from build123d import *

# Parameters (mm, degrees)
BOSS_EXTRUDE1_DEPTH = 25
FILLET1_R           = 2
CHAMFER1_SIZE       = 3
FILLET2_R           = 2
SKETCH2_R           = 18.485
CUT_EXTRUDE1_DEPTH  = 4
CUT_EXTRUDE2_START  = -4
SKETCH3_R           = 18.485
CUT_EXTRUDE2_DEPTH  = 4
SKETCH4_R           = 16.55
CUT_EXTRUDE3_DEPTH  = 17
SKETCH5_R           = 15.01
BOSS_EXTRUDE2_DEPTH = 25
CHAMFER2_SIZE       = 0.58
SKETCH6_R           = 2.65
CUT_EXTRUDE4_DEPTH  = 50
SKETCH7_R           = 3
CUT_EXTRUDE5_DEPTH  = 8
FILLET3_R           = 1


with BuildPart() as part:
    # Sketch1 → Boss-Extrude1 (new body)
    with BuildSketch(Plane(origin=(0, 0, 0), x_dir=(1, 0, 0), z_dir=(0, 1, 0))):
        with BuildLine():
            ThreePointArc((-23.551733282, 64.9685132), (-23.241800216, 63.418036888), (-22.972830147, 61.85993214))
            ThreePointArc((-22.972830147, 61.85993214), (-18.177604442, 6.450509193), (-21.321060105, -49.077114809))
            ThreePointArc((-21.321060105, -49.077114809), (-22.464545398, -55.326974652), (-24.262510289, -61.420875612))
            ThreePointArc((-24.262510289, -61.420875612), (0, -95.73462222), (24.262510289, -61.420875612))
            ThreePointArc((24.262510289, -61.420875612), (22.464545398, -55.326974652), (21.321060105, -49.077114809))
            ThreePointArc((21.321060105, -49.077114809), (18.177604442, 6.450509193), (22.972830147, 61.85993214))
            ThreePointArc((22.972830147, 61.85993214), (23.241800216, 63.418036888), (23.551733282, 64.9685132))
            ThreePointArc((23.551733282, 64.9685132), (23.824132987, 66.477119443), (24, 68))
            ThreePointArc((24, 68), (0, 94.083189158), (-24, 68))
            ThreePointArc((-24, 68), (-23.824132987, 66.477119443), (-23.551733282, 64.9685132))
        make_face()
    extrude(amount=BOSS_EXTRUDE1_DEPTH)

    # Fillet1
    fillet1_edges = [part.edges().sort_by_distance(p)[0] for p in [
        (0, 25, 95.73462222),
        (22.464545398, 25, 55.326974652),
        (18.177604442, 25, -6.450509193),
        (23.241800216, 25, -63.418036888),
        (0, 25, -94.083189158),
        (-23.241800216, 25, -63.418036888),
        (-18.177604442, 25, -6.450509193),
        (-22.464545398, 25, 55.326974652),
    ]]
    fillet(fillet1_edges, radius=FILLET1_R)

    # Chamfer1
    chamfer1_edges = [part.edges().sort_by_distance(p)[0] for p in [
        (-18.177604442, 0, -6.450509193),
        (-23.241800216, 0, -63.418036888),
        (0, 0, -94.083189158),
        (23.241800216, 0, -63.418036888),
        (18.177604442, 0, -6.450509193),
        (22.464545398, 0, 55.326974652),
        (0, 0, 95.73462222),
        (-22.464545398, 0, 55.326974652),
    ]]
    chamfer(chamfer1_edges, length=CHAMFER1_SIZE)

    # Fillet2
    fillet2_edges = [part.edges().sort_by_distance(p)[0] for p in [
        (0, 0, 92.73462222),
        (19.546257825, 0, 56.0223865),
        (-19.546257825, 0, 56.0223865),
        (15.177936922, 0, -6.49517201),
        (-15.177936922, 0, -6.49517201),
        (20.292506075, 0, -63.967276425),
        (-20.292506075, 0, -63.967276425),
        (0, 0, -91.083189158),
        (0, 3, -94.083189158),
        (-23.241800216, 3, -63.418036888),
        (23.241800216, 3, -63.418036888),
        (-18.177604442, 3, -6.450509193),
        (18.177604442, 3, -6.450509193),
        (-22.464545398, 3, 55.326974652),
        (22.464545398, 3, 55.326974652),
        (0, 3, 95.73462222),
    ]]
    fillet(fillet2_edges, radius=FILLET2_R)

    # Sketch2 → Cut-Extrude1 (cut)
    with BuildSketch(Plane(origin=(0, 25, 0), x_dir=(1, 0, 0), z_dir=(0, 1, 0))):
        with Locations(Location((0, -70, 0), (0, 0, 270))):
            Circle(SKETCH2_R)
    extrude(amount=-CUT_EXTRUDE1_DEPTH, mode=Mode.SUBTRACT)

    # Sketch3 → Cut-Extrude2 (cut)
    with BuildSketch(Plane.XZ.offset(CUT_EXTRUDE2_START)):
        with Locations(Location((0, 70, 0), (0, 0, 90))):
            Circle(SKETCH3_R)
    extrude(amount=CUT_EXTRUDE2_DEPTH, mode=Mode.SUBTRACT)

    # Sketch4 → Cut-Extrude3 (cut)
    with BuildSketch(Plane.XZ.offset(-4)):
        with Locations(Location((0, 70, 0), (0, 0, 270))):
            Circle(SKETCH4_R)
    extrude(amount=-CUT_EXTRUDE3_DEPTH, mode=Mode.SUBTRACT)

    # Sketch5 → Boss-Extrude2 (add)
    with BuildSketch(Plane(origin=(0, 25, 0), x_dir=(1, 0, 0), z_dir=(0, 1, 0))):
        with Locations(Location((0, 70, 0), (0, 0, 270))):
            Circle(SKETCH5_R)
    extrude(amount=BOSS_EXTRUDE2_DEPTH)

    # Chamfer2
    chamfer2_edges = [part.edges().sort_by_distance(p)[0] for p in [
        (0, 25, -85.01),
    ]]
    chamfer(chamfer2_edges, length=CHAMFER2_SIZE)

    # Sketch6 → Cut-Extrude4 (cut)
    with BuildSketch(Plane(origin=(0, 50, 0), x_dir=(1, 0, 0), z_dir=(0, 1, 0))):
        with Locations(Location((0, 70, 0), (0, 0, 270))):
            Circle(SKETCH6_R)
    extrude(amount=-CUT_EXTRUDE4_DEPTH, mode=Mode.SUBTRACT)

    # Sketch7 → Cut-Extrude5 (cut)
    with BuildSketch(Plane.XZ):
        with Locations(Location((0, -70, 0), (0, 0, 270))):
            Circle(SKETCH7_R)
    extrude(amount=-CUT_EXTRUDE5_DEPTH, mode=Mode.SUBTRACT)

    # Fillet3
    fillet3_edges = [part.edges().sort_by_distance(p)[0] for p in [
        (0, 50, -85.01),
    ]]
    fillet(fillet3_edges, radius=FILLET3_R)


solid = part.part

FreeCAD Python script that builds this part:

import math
import FreeCAD as App
import Part
import Sketcher

V = App.Vector
Q = App.Units.Quantity


def edges_at(feature, points):
    """Names of the edges that pass closest to the given points."""
    edges = feature.Shape.Edges
    near = lambda p: min(range(len(edges)), key=lambda i: edges[i].distToShape(Part.Vertex(*p))[0])
    return sorted({f"Edge{near(p) + 1}" for p in points})

doc = App.newDocument("Part")
body = doc.addObject("PartDesign::Body", "Body")

# Sketch on XZ plane
sketch1 = body.newObject("Sketcher::SketchObject", "Sketch")
sketch1.AttachmentSupport = (doc.getObject("XZ_Plane"), [""])
sketch1.MapMode = "FlatFace"
sketch1.addGeometry([
    Part.ArcOfCircle(Part.Circle(V(-82.227683, -52.433246, 0), V(0, 0, 1), 60), math.radians(-12.059134), math.radians(-9.039273)),  # 0
    Part.ArcOfCircle(Part.Circle(V(-407.727533, -0.650401, 0), V(0, 0, 1), 389.593106), math.radians(-9.039273), math.radians(7.333216)),  # 1
    Part.ArcOfCircle(Part.Circle(V(-80.830297, 41.418738, 0), V(0, 0, 1), 60), math.radians(7.333216), math.radians(19.473386)),  # 2
    Part.ArcOfCircle(Part.Circle(V(0, 70, 0), V(0, 0, 1), 25.734622), math.radians(-19.473386), math.radians(199.473386)),  # 3
    Part.ArcOfCircle(Part.Circle(V(80.830297, 41.418738, 0), V(0, 0, 1), 60), math.radians(160.526614), math.radians(172.666784)),  # 4
    Part.ArcOfCircle(Part.Circle(V(407.727533, -0.650401, 0), V(0, 0, 1), 389.593106), math.radians(172.666784), math.radians(189.039273)),  # 5
    Part.ArcOfCircle(Part.Circle(V(82.227683, -52.433246, 0), V(0, 0, 1), 60), math.radians(-170.960727), math.radians(-167.940866)),  # 6
    Part.ArcOfCircle(Part.Circle(V(0, -70, 0), V(0, 0, 1), 24.083189), math.radians(4.763642), math.radians(12.059134)),  # 7
    Part.ArcOfCircle(Part.Circle(V(0, -70, 0), V(0, 0, 1), 24.083189), math.radians(175.236358), math.radians(364.763642)),  # 8
    Part.ArcOfCircle(Part.Circle(V(0, -70, 0), V(0, 0, 1), 24.083189), math.radians(167.940866), math.radians(175.236358)),  # 9
], False)
sketch1.addConstraint([
    Sketcher.Constraint("Tangent", 0, 2, 1, 1),
    Sketcher.Constraint("Tangent", 1, 2, 2, 1),
    Sketcher.Constraint("Tangent", 2, 2, 3, 2),
    Sketcher.Constraint("Tangent", 3, 1, 4, 1),
    Sketcher.Constraint("Tangent", 4, 2, 5, 1),
    Sketcher.Constraint("Tangent", 5, 2, 6, 1),
    Sketcher.Constraint("Tangent", 6, 2, 7, 2),
    Sketcher.Constraint("Tangent", 7, 1, 8, 2),
    Sketcher.Constraint("Tangent", 8, 1, 9, 2),
    Sketcher.Constraint("Tangent", 9, 1, 0, 1),
    Sketcher.Constraint("Coincident", 9, 3, 7, 3),
    Sketcher.Constraint("Equal", 0, 2),
    Sketcher.Constraint("Equal", 2, 4),
    Sketcher.Constraint("Equal", 1, 5),
    Sketcher.Constraint("Equal", 4, 6),
    Sketcher.Constraint("Symmetric", 3, 3, 7, 3, -1, 1),
    Sketcher.Constraint("Symmetric", 2, 3, 4, 3, -2),
    Sketcher.Constraint("Horizontal", 1, 3, 5, 3),
    Sketcher.Constraint("Horizontal", 7, 1, 8, 1),
    Sketcher.Constraint("Radius", 0, Q("60 mm")),
    Sketcher.Constraint("DistanceY", -1, 1, 3, 3, Q("70 mm")),
    Sketcher.Constraint("DistanceX", -1, 1, 7, 1, Q("24 mm")),
    Sketcher.Constraint("DistanceY", 7, 1, -1, 1, Q("68 mm")),
    Sketcher.Constraint("Radius", 1, Q("389.593106 mm")),
    Sketcher.Constraint("Radius", 3, Q("25.734622 mm")),
    Sketcher.Constraint("DistanceY", 1, 3, -1, 1, Q("0.650401 mm")),
    Sketcher.Constraint("DistanceX", 0, 2, -1, 1, Q("22.97283 mm")),
])
pad1 = body.newObject("PartDesign::Pad", "Pad")
pad1.Profile = sketch1
pad1.Length = 25
pad1.Reversed = True
doc.recompute()

fillet = body.newObject("PartDesign::Fillet", "Fillet")
fillet.Base = (pad1, edges_at(pad1, [
    (0, 25, 95.735),
    (22.465, 25, 55.327),
    (18.178, 25, -6.451),
    (23.242, 25, -63.418),
    (0, 25, -94.083),
    (-23.242, 25, -63.418),
    (-18.178, 25, -6.451),
    (-22.465, 25, 55.327),
]))
fillet.Radius = 2
doc.recompute()

chamfer = body.newObject("PartDesign::Chamfer", "Chamfer")
chamfer.Base = (fillet, edges_at(fillet, [
    (-18.178, 0, -6.451),
    (-23.242, 0, -63.418),
    (0, 0, -94.083),
    (23.242, 0, -63.418),
    (18.178, 0, -6.451),
    (22.465, 0, 55.327),
    (0, 0, 95.735),
    (-22.465, 0, 55.327),
]))
chamfer.Size = 3
doc.recompute()

fillet2 = body.newObject("PartDesign::Fillet", "Fillet001")
fillet2.Base = (chamfer, edges_at(chamfer, [
    (0, 0, 92.735),
    (19.546, 0, 56.022),
    (-19.546, 0, 56.022),
    (15.178, 0, -6.495),
    (-15.178, 0, -6.495),
    (20.293, 0, -63.967),
    (-20.293, 0, -63.967),
    (0, 0, -91.083),
    (0, 3, -94.083),
    (-23.242, 3, -63.418),
    (23.242, 3, -63.418),
    (-18.178, 3, -6.451),
    (18.178, 3, -6.451),
    (-22.465, 3, 55.327),
    (22.465, 3, 55.327),
    (0, 3, 95.735),
]))
fillet2.Radius = 2

# Sketch on XZ plane
sketch2 = body.newObject("Sketcher::SketchObject", "Sketch001")
sketch2.AttachmentSupport = (doc.getObject("XZ_Plane"), [""])
sketch2.MapMode = "FlatFace"
sketch2.AttachmentOffset = App.Placement(V(0, 0, -25), App.Rotation())
sketch2.addGeometry(Part.Circle(V(0, 70, 0), V(0, 0, 1), 18.485), False)
sketch2.addConstraint([
    Sketcher.Constraint("PointOnObject", 0, 3, -2),
    Sketcher.Constraint("Diameter", 0, Q("36.97 mm")),
    Sketcher.Constraint("DistanceY", -1, 1, 0, 3, Q("70 mm")),
])
pocket1 = body.newObject("PartDesign::Pocket", "Pocket")
pocket1.Profile = sketch2
pocket1.Length = 4
pocket1.Reversed = True

# Sketch on XZ plane
sketch3 = body.newObject("Sketcher::SketchObject", "Sketch002")
sketch3.AttachmentSupport = (doc.getObject("XZ_Plane"), [""])
sketch3.MapMode = "FlatFace"
sketch3.AttachmentOffset = App.Placement(V(0, 0, -4), App.Rotation())
sketch3.addGeometry(Part.Circle(V(0, 70, 0), V(0, 0, 1), 18.485), False)
sketch3.addConstraint([
    Sketcher.Constraint("PointOnObject", 0, 3, -2),
    Sketcher.Constraint("Diameter", 0, Q("36.97 mm")),
    Sketcher.Constraint("DistanceY", -1, 1, 0, 3, Q("70 mm")),
])
pocket2 = body.newObject("PartDesign::Pocket", "Pocket001")
pocket2.Profile = sketch3
pocket2.Length = 4
pocket2.Reversed = True

# Sketch on XZ plane
sketch4 = body.newObject("Sketcher::SketchObject", "Sketch003")
sketch4.AttachmentSupport = (doc.getObject("XZ_Plane"), [""])
sketch4.MapMode = "FlatFace"
sketch4.AttachmentOffset = App.Placement(V(0, 0, -4), App.Rotation())
sketch4.addGeometry(Part.Circle(V(0, 70, 0), V(0, 0, 1), 16.55), False)
sketch4.addConstraint([
    Sketcher.Constraint("PointOnObject", 0, 3, -2),
    Sketcher.Constraint("Diameter", 0, Q("33.1 mm")),
    Sketcher.Constraint("DistanceY", -1, 1, 0, 3, Q("70 mm")),
])
pocket3 = body.newObject("PartDesign::Pocket", "Pocket002")
pocket3.Profile = sketch4
pocket3.Length = 17

# Sketch on XZ plane
sketch5 = body.newObject("Sketcher::SketchObject", "Sketch004")
sketch5.AttachmentSupport = (doc.getObject("XZ_Plane"), [""])
sketch5.MapMode = "FlatFace"
sketch5.AttachmentOffset = App.Placement(V(0, 0, -25), App.Rotation())
sketch5.addGeometry(Part.Circle(V(0, -70, 0), V(0, 0, 1), 15.01), False)
sketch5.addConstraint([
    Sketcher.Constraint("PointOnObject", 0, 3, -2),
    Sketcher.Constraint("Diameter", 0, Q("30.02 mm")),
    Sketcher.Constraint("DistanceY", 0, 3, -1, 1, Q("70 mm")),
])
pad2 = body.newObject("PartDesign::Pad", "Pad001")
pad2.Profile = sketch5
pad2.Length = 25
pad2.Reversed = True
doc.recompute()

chamfer2 = body.newObject("PartDesign::Chamfer", "Chamfer001")
chamfer2.Base = (pad2, edges_at(pad2, [(0, 25, -85.01)]))
chamfer2.Size = 0.58

# Sketch on XZ plane
sketch6 = body.newObject("Sketcher::SketchObject", "Sketch005")
sketch6.AttachmentSupport = (doc.getObject("XZ_Plane"), [""])
sketch6.MapMode = "FlatFace"
sketch6.AttachmentOffset = App.Placement(V(0, 0, -50), App.Rotation())
sketch6.addGeometry(Part.Circle(V(0, -70, 0), V(0, 0, 1), 2.65), False)
sketch6.addConstraint([
    Sketcher.Constraint("PointOnObject", 0, 3, -2),
    Sketcher.Constraint("Diameter", 0, Q("5.3 mm")),
    Sketcher.Constraint("DistanceY", 0, 3, -1, 1, Q("70 mm")),
])
pocket4 = body.newObject("PartDesign::Pocket", "Pocket003")
pocket4.Profile = sketch6
pocket4.Length = 50
pocket4.Reversed = True

# Sketch on XZ plane
sketch7 = body.newObject("Sketcher::SketchObject", "Sketch006")
sketch7.AttachmentSupport = (doc.getObject("XZ_Plane"), [""])
sketch7.MapMode = "FlatFace"
sketch7.addGeometry(Part.Circle(V(0, -70, 0), V(0, 0, 1), 3), False)
sketch7.addConstraint([
    Sketcher.Constraint("PointOnObject", 0, 3, -2),
    Sketcher.Constraint("Diameter", 0, Q("6 mm")),
    Sketcher.Constraint("DistanceY", 0, 3, -1, 1, Q("70 mm")),
])
pocket5 = body.newObject("PartDesign::Pocket", "Pocket004")
pocket5.Profile = sketch7
pocket5.Length = 8
doc.recompute()

fillet3 = body.newObject("PartDesign::Fillet", "Fillet002")
fillet3.Base = (pocket5, edges_at(pocket5, [(0, 50, -85.01)]))
fillet3.Radius = 1

doc.recompute()
